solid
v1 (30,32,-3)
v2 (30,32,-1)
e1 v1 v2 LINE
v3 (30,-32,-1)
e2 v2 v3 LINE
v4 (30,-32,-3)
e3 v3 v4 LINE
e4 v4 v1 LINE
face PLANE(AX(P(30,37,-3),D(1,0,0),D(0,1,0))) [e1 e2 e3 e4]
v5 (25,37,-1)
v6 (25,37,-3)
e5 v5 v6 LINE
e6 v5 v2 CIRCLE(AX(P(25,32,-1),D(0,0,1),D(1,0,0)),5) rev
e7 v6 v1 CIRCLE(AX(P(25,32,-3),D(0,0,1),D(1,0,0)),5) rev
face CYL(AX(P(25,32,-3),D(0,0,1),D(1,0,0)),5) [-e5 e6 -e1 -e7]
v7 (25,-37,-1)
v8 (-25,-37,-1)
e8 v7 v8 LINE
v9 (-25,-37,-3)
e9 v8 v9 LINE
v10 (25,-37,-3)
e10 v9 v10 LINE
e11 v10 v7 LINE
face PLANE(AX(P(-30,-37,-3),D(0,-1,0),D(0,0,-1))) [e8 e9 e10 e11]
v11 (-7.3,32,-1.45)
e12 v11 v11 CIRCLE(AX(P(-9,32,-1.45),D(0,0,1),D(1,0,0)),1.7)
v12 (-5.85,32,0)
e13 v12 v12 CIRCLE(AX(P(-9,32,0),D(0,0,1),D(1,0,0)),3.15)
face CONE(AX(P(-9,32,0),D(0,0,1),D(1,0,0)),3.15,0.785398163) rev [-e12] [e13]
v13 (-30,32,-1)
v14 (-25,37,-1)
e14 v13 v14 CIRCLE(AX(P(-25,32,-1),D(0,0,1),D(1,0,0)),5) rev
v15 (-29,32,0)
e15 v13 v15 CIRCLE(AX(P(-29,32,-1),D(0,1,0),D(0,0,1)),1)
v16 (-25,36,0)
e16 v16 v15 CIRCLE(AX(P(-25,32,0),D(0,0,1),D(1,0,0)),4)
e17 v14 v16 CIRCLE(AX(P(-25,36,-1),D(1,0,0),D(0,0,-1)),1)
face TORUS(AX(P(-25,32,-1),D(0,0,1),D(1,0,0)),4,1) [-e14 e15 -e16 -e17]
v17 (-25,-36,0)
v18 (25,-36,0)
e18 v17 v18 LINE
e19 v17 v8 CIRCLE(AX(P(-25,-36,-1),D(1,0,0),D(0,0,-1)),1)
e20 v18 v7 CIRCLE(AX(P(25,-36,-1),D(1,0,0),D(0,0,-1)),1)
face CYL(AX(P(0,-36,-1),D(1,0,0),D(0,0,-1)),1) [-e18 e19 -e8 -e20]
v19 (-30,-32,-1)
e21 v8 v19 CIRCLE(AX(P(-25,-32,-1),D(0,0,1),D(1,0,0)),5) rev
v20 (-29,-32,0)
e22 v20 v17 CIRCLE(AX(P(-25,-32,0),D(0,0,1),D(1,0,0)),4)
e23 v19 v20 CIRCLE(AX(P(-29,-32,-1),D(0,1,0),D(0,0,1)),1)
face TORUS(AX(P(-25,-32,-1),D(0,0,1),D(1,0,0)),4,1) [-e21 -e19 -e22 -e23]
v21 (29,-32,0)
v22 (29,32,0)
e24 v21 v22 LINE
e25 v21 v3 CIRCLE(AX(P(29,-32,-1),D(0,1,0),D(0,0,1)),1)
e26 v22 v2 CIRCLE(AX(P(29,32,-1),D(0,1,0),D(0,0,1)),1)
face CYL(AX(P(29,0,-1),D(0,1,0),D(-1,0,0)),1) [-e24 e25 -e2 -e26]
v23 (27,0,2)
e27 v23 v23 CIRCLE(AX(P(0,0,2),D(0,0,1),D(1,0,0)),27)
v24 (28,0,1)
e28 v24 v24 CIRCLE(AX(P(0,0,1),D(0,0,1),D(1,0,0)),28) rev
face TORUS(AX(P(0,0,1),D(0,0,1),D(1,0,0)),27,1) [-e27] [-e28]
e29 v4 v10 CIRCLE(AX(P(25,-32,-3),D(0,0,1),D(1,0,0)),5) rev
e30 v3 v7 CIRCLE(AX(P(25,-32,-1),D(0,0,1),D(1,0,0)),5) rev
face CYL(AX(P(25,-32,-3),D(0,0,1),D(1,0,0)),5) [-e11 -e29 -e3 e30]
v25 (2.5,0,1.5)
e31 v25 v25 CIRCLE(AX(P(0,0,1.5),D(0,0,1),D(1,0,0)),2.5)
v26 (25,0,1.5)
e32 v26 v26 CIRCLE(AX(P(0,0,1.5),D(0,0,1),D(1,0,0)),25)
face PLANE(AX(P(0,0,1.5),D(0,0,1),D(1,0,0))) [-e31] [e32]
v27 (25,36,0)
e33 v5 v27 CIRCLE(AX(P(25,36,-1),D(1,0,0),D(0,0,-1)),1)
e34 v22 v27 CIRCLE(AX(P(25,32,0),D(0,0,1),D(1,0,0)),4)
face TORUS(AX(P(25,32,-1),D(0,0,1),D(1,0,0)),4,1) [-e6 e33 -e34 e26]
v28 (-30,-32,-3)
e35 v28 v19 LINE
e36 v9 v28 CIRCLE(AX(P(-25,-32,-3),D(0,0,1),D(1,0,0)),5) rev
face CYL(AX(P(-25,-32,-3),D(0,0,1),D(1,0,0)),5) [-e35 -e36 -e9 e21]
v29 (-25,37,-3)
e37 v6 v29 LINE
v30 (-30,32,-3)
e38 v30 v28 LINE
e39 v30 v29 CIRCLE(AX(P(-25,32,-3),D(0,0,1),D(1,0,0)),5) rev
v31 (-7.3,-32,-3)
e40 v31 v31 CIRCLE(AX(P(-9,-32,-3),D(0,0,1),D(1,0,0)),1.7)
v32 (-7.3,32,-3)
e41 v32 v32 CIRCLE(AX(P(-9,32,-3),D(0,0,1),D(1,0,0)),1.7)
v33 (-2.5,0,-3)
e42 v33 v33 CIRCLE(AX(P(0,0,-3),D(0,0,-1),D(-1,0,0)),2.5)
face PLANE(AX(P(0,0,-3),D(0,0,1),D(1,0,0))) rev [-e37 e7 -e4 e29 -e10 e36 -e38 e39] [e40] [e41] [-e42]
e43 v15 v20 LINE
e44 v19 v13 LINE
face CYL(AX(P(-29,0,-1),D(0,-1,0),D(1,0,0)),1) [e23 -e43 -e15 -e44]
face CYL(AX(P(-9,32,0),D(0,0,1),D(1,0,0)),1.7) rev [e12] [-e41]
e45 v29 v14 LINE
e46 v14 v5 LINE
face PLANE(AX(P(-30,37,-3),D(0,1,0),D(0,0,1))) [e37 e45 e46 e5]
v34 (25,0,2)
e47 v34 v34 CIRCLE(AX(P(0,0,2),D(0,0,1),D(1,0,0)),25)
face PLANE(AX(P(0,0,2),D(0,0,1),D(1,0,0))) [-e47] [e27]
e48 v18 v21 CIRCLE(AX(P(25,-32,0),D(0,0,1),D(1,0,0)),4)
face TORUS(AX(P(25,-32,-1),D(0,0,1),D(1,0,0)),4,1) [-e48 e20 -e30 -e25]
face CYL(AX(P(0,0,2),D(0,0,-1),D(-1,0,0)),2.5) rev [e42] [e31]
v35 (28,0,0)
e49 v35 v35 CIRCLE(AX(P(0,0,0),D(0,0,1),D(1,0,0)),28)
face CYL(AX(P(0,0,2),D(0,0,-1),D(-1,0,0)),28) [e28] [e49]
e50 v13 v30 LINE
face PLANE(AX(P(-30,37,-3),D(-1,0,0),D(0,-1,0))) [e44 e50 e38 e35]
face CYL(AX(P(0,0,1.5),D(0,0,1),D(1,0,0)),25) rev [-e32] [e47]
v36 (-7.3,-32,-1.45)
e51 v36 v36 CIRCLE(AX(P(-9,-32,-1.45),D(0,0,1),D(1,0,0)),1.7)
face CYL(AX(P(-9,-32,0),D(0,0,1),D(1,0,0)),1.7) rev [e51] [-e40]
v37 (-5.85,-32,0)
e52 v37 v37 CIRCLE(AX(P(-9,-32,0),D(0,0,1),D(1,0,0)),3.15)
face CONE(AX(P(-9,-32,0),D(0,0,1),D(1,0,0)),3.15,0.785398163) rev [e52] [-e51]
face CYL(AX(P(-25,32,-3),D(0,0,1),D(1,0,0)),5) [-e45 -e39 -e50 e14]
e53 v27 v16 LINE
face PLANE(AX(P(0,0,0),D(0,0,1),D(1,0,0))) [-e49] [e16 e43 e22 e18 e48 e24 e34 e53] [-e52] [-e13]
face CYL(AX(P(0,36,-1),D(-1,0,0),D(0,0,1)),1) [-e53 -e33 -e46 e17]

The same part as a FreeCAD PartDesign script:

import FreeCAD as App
import Part
import Sketcher

V = App.Vector
Q = App.Units.Quantity


def edges_at(feature, points):
    """Names of the edges that pass closest to the given points."""
    edges = feature.Shape.Edges
    near = lambda p: min(range(len(edges)), key=lambda i: edges[i].distToShape(Part.Vertex(*p))[0])
    return sorted({f"Edge{near(p) + 1}" for p in points})


def add_polygon(sketch, points):
    """Adds a closed chain of lines whose ends are joined by coincident constraints."""
    first, n = sketch.GeometryCount, len(points)
    for a, b in zip(points, points[1:] + points[:1]):
        sketch.addGeometry(Part.LineSegment(App.Vector(*a, 0), App.Vector(*b, 0)), False)
    for i in range(n):
        sketch.addConstraint(Sketcher.Constraint("Coincident", first + i, 2, first + (i + 1) % n, 1))

doc = App.newDocument("Part")
params = doc.addObject("Spreadsheet::Sheet", "Params")
for row, (alias, value) in enumerate([
    ("sketch1_width", "60 mm"),
    ("sketch1_height", "74 mm"),
    ("pad1_length", "3 mm"),
    ("sketch2_diameter", "56 mm"),
    ("pad2_length", "2 mm"),
    ("sketch3_diameter", "50 mm"),
    ("pocket1_length", "0.5 mm"),
    ("fillet_radius", "5 mm"),
    ("fillet2_radius", "1 mm"),
    ("sketch4_diameter", "5 mm"),
    ("sketch5_height", "3 mm"),
    ("sketch5_width", "1.7 mm"),
    ("sketch5_width2", "3.15 mm"),
    ("groove_angle", "360 deg"),
    ("linearpattern_pitch", "64 mm"),
], start=1):
    params.set(f"A{row}", alias)
    params.set(f"B{row}", "=" + value)
    params.setAlias(f"B{row}", alias)

body = doc.addObject("PartDesign::Body", "Body")

# Sketch on XY plane
sketch1 = doc.addObject("Sketcher::SketchObject", "Sketch")
body.addObject(sketch1)
sketch1.AttachmentSupport = (doc.XY_Plane, [""])
sketch1.MapMode = "FlatFace"
add_polygon(sketch1, [(-30, 37), (-30, -37), (30, -37), (30, 37)])  # lines 0-3
sketch1.addConstraint([
    Sketcher.Constraint("Vertical", 0),
    Sketcher.Constraint("Horizontal", 1),
    Sketcher.Constraint("Vertical", 2),
    Sketcher.Constraint("Horizontal", 3),
    Sketcher.Constraint("Symmetric", 0, 2, 2, 2, -1, 1),
    Sketcher.Constraint("DistanceX", 1, 1, 1, 2, 60.0),
    Sketcher.Constraint("DistanceY", 0, 2, 0, 1, 74.0),
])
sketch1.setExpression("Constraints[9]", "Params.sketch1_width")
sketch1.setExpression("Constraints[10]", "Params.sketch1_height")
pad1 = doc.addObject("PartDesign::Pad", "Pad")
body.addObject(pad1)
pad1.Profile = sketch1
pad1.setExpression("Length", "Params.pad1_length")
pad1.Reversed = True

# Sketch on XY plane
sketch2 = doc.addObject("Sketcher::SketchObject", "Sketch001")
body.addObject(sketch2)
sketch2.AttachmentSupport = (doc.XY_Plane, [""])
sketch2.MapMode = "FlatFace"
sketch2.addGeometry(Part.Circle(V(0, 0, 0), V(0, 0, 1), 28), False)
sketch2.addConstraint([
    Sketcher.Constraint("Coincident", 0, 3, -1, 1),
    Sketcher.Constraint("Diameter", 0, 56.0),
])
sketch2.setExpression("Constraints[1]", "Params.sketch2_diameter")
pad2 = doc.addObject("PartDesign::Pad", "Pad001")
body.addObject(pad2)
pad2.Profile = sketch2
pad2.setExpression("Length", "Params.pad2_length")

# Sketch on XY plane
sketch3 = doc.addObject("Sketcher::SketchObject", "Sketch002")
body.addObject(sketch3)
sketch3.AttachmentSupport = (doc.XY_Plane, [""])
sketch3.MapMode = "FlatFace"
sketch3.AttachmentOffset = App.Placement(V(0, 0, 2), App.Rotation())
sketch3.addGeometry(Part.Circle(V(0, 0, 0), V(0, 0, 1), 25), False)
sketch3.addConstraint([
    Sketcher.Constraint("Coincident", 0, 3, -1, 1),
    Sketcher.Constraint("Diameter", 0, 50.0),
])
sketch3.setExpression("Constraints[1]", "Params.sketch3_diameter")
pocket1 = doc.addObject("PartDesign::Pocket", "Pocket")
body.addObject(pocket1)
pocket1.Profile = sketch3
pocket1.setExpression("Length", "Params.pocket1_length")
doc.recompute()

fillet = doc.addObject("PartDesign::Fillet", "Fillet")
body.addObject(fillet)
fillet.Base = (pocket1, edges_at(pocket1, [
    (-30, 37, -1.5),
    (30, 37, -1.5),
    (30, -37, -1.5),
    (-30, -37, -1.5),
]))
fillet.setExpression("Radius", "Params.fillet_radius")
doc.recompute()

fillet2 = doc.addObject("PartDesign::Fillet", "Fillet001")
body.addObject(fillet2)
fillet2.Base = (fillet, edges_at(fillet, [
    (-28, 0, 2),
    (0, -37, 0),
    (-30, 0, 0),
    (30, 0, 0),
    (0, 37, 0),
    (-28.536, 35.536, 0),
    (28.536, 35.536, 0),
    (-28.536, -35.536, 0),
    (28.536, -35.536, 0),
]))
fillet2.setExpression("Radius", "Params.fillet2_radius")

# Sketch on XY plane
sketch4 = doc.addObject("Sketcher::SketchObject", "Sketch003")
body.addObject(sketch4)
sketch4.AttachmentSupport = (doc.XY_Plane, [""])
sketch4.MapMode = "FlatFace"
sketch4.AttachmentOffset = App.Placement(V(0, 0, -3), App.Rotation())
sketch4.addGeometry(Part.Circle(V(0, 0, 0), V(0, 0, 1), 2.5), False)
sketch4.addConstraint([
    Sketcher.Constraint("Coincident", 0, 3, -1, 1),
    Sketcher.Constraint("Diameter", 0, 5.0),
])
sketch4.setExpression("Constraints[1]", "Params.sketch4_diameter")
pocket2 = doc.addObject("PartDesign::Pocket", "Pocket001")
body.addObject(pocket2)
pocket2.Profile = sketch4
pocket2.Type = "ThroughAll"
pocket2.Reversed = True

# Sketch on YZ plane
sketch5 = doc.addObject("Sketcher::SketchObject", "Sketch004")
body.addObject(sketch5)
sketch5.AttachmentSupport = (doc.YZ_Plane, [""])
sketch5.MapMode = "FlatFace"
sketch5.AttachmentOffset = App.Placement(V(0, 0, -9), App.Rotation())
add_polygon(sketch5, [(32, -3), (32, 0), (28.9, 0), (30.3, -1.4), (30.3, -3)])  # lines 0-4
sketch5.addGeometry(Part.LineSegment(V(32, 0, 0), V(32, -3, 0)), True)  # axis
sketch5.addConstraint([
    Sketcher.Constraint("Vertical", 0),
    Sketcher.Constraint("Horizontal", 1),
    Sketcher.Constraint("Vertical", 3),
    Sketcher.Constraint("Horizontal", 4),
    Sketcher.Constraint("Vertical", 5),
    Sketcher.Constraint("Coincident", 5, 1, 0, 2),
    Sketcher.Constraint("PointOnObject", 0, 2, -1),
    Sketcher.Constraint("Horizontal", 3, 2, 5, 2),
    Sketcher.Constraint("DistanceY", 0, 1, 0, 2, 3.0),
    Sketcher.Constraint("Angle", 2, Q("-45 deg")),
    Sketcher.Constraint("DistanceX", 4, 1, 4, 2, 1.7),
    Sketcher.Constraint("DistanceX", -1, 1, 0, 2, 32.0),
    Sketcher.Constraint("DistanceX", 1, 2, 1, 1, 3.15),
])
sketch5.setExpression("Constraints[13]", "Params.sketch5_height")
sketch5.setExpression("Constraints[15]", "Params.sketch5_width")
sketch5.setExpression("Constraints[17]", "Params.sketch5_width2")
groove = doc.addObject("PartDesign::Groove", "Groove")
body.addObject(groove)
groove.Profile = sketch5
groove.ReferenceAxis = (sketch5, ["Axis0"])
groove.setExpression("Angle", "Params.groove_angle")
doc.recompute()

linearpattern = doc.addObject("PartDesign::LinearPattern", "LinearPattern")
body.addObject(linearpattern)
linearpattern.Originals = [groove]
linearpattern.Direction = (doc.Y_Axis, [""])
linearpattern.Mode = "offset"
linearpattern.setExpression("Offset", "Params.linearpattern_pitch")
linearpattern.Occurrences = 2
linearpattern.Reversed = True
body.Tip = linearpattern

doc.recompute()
